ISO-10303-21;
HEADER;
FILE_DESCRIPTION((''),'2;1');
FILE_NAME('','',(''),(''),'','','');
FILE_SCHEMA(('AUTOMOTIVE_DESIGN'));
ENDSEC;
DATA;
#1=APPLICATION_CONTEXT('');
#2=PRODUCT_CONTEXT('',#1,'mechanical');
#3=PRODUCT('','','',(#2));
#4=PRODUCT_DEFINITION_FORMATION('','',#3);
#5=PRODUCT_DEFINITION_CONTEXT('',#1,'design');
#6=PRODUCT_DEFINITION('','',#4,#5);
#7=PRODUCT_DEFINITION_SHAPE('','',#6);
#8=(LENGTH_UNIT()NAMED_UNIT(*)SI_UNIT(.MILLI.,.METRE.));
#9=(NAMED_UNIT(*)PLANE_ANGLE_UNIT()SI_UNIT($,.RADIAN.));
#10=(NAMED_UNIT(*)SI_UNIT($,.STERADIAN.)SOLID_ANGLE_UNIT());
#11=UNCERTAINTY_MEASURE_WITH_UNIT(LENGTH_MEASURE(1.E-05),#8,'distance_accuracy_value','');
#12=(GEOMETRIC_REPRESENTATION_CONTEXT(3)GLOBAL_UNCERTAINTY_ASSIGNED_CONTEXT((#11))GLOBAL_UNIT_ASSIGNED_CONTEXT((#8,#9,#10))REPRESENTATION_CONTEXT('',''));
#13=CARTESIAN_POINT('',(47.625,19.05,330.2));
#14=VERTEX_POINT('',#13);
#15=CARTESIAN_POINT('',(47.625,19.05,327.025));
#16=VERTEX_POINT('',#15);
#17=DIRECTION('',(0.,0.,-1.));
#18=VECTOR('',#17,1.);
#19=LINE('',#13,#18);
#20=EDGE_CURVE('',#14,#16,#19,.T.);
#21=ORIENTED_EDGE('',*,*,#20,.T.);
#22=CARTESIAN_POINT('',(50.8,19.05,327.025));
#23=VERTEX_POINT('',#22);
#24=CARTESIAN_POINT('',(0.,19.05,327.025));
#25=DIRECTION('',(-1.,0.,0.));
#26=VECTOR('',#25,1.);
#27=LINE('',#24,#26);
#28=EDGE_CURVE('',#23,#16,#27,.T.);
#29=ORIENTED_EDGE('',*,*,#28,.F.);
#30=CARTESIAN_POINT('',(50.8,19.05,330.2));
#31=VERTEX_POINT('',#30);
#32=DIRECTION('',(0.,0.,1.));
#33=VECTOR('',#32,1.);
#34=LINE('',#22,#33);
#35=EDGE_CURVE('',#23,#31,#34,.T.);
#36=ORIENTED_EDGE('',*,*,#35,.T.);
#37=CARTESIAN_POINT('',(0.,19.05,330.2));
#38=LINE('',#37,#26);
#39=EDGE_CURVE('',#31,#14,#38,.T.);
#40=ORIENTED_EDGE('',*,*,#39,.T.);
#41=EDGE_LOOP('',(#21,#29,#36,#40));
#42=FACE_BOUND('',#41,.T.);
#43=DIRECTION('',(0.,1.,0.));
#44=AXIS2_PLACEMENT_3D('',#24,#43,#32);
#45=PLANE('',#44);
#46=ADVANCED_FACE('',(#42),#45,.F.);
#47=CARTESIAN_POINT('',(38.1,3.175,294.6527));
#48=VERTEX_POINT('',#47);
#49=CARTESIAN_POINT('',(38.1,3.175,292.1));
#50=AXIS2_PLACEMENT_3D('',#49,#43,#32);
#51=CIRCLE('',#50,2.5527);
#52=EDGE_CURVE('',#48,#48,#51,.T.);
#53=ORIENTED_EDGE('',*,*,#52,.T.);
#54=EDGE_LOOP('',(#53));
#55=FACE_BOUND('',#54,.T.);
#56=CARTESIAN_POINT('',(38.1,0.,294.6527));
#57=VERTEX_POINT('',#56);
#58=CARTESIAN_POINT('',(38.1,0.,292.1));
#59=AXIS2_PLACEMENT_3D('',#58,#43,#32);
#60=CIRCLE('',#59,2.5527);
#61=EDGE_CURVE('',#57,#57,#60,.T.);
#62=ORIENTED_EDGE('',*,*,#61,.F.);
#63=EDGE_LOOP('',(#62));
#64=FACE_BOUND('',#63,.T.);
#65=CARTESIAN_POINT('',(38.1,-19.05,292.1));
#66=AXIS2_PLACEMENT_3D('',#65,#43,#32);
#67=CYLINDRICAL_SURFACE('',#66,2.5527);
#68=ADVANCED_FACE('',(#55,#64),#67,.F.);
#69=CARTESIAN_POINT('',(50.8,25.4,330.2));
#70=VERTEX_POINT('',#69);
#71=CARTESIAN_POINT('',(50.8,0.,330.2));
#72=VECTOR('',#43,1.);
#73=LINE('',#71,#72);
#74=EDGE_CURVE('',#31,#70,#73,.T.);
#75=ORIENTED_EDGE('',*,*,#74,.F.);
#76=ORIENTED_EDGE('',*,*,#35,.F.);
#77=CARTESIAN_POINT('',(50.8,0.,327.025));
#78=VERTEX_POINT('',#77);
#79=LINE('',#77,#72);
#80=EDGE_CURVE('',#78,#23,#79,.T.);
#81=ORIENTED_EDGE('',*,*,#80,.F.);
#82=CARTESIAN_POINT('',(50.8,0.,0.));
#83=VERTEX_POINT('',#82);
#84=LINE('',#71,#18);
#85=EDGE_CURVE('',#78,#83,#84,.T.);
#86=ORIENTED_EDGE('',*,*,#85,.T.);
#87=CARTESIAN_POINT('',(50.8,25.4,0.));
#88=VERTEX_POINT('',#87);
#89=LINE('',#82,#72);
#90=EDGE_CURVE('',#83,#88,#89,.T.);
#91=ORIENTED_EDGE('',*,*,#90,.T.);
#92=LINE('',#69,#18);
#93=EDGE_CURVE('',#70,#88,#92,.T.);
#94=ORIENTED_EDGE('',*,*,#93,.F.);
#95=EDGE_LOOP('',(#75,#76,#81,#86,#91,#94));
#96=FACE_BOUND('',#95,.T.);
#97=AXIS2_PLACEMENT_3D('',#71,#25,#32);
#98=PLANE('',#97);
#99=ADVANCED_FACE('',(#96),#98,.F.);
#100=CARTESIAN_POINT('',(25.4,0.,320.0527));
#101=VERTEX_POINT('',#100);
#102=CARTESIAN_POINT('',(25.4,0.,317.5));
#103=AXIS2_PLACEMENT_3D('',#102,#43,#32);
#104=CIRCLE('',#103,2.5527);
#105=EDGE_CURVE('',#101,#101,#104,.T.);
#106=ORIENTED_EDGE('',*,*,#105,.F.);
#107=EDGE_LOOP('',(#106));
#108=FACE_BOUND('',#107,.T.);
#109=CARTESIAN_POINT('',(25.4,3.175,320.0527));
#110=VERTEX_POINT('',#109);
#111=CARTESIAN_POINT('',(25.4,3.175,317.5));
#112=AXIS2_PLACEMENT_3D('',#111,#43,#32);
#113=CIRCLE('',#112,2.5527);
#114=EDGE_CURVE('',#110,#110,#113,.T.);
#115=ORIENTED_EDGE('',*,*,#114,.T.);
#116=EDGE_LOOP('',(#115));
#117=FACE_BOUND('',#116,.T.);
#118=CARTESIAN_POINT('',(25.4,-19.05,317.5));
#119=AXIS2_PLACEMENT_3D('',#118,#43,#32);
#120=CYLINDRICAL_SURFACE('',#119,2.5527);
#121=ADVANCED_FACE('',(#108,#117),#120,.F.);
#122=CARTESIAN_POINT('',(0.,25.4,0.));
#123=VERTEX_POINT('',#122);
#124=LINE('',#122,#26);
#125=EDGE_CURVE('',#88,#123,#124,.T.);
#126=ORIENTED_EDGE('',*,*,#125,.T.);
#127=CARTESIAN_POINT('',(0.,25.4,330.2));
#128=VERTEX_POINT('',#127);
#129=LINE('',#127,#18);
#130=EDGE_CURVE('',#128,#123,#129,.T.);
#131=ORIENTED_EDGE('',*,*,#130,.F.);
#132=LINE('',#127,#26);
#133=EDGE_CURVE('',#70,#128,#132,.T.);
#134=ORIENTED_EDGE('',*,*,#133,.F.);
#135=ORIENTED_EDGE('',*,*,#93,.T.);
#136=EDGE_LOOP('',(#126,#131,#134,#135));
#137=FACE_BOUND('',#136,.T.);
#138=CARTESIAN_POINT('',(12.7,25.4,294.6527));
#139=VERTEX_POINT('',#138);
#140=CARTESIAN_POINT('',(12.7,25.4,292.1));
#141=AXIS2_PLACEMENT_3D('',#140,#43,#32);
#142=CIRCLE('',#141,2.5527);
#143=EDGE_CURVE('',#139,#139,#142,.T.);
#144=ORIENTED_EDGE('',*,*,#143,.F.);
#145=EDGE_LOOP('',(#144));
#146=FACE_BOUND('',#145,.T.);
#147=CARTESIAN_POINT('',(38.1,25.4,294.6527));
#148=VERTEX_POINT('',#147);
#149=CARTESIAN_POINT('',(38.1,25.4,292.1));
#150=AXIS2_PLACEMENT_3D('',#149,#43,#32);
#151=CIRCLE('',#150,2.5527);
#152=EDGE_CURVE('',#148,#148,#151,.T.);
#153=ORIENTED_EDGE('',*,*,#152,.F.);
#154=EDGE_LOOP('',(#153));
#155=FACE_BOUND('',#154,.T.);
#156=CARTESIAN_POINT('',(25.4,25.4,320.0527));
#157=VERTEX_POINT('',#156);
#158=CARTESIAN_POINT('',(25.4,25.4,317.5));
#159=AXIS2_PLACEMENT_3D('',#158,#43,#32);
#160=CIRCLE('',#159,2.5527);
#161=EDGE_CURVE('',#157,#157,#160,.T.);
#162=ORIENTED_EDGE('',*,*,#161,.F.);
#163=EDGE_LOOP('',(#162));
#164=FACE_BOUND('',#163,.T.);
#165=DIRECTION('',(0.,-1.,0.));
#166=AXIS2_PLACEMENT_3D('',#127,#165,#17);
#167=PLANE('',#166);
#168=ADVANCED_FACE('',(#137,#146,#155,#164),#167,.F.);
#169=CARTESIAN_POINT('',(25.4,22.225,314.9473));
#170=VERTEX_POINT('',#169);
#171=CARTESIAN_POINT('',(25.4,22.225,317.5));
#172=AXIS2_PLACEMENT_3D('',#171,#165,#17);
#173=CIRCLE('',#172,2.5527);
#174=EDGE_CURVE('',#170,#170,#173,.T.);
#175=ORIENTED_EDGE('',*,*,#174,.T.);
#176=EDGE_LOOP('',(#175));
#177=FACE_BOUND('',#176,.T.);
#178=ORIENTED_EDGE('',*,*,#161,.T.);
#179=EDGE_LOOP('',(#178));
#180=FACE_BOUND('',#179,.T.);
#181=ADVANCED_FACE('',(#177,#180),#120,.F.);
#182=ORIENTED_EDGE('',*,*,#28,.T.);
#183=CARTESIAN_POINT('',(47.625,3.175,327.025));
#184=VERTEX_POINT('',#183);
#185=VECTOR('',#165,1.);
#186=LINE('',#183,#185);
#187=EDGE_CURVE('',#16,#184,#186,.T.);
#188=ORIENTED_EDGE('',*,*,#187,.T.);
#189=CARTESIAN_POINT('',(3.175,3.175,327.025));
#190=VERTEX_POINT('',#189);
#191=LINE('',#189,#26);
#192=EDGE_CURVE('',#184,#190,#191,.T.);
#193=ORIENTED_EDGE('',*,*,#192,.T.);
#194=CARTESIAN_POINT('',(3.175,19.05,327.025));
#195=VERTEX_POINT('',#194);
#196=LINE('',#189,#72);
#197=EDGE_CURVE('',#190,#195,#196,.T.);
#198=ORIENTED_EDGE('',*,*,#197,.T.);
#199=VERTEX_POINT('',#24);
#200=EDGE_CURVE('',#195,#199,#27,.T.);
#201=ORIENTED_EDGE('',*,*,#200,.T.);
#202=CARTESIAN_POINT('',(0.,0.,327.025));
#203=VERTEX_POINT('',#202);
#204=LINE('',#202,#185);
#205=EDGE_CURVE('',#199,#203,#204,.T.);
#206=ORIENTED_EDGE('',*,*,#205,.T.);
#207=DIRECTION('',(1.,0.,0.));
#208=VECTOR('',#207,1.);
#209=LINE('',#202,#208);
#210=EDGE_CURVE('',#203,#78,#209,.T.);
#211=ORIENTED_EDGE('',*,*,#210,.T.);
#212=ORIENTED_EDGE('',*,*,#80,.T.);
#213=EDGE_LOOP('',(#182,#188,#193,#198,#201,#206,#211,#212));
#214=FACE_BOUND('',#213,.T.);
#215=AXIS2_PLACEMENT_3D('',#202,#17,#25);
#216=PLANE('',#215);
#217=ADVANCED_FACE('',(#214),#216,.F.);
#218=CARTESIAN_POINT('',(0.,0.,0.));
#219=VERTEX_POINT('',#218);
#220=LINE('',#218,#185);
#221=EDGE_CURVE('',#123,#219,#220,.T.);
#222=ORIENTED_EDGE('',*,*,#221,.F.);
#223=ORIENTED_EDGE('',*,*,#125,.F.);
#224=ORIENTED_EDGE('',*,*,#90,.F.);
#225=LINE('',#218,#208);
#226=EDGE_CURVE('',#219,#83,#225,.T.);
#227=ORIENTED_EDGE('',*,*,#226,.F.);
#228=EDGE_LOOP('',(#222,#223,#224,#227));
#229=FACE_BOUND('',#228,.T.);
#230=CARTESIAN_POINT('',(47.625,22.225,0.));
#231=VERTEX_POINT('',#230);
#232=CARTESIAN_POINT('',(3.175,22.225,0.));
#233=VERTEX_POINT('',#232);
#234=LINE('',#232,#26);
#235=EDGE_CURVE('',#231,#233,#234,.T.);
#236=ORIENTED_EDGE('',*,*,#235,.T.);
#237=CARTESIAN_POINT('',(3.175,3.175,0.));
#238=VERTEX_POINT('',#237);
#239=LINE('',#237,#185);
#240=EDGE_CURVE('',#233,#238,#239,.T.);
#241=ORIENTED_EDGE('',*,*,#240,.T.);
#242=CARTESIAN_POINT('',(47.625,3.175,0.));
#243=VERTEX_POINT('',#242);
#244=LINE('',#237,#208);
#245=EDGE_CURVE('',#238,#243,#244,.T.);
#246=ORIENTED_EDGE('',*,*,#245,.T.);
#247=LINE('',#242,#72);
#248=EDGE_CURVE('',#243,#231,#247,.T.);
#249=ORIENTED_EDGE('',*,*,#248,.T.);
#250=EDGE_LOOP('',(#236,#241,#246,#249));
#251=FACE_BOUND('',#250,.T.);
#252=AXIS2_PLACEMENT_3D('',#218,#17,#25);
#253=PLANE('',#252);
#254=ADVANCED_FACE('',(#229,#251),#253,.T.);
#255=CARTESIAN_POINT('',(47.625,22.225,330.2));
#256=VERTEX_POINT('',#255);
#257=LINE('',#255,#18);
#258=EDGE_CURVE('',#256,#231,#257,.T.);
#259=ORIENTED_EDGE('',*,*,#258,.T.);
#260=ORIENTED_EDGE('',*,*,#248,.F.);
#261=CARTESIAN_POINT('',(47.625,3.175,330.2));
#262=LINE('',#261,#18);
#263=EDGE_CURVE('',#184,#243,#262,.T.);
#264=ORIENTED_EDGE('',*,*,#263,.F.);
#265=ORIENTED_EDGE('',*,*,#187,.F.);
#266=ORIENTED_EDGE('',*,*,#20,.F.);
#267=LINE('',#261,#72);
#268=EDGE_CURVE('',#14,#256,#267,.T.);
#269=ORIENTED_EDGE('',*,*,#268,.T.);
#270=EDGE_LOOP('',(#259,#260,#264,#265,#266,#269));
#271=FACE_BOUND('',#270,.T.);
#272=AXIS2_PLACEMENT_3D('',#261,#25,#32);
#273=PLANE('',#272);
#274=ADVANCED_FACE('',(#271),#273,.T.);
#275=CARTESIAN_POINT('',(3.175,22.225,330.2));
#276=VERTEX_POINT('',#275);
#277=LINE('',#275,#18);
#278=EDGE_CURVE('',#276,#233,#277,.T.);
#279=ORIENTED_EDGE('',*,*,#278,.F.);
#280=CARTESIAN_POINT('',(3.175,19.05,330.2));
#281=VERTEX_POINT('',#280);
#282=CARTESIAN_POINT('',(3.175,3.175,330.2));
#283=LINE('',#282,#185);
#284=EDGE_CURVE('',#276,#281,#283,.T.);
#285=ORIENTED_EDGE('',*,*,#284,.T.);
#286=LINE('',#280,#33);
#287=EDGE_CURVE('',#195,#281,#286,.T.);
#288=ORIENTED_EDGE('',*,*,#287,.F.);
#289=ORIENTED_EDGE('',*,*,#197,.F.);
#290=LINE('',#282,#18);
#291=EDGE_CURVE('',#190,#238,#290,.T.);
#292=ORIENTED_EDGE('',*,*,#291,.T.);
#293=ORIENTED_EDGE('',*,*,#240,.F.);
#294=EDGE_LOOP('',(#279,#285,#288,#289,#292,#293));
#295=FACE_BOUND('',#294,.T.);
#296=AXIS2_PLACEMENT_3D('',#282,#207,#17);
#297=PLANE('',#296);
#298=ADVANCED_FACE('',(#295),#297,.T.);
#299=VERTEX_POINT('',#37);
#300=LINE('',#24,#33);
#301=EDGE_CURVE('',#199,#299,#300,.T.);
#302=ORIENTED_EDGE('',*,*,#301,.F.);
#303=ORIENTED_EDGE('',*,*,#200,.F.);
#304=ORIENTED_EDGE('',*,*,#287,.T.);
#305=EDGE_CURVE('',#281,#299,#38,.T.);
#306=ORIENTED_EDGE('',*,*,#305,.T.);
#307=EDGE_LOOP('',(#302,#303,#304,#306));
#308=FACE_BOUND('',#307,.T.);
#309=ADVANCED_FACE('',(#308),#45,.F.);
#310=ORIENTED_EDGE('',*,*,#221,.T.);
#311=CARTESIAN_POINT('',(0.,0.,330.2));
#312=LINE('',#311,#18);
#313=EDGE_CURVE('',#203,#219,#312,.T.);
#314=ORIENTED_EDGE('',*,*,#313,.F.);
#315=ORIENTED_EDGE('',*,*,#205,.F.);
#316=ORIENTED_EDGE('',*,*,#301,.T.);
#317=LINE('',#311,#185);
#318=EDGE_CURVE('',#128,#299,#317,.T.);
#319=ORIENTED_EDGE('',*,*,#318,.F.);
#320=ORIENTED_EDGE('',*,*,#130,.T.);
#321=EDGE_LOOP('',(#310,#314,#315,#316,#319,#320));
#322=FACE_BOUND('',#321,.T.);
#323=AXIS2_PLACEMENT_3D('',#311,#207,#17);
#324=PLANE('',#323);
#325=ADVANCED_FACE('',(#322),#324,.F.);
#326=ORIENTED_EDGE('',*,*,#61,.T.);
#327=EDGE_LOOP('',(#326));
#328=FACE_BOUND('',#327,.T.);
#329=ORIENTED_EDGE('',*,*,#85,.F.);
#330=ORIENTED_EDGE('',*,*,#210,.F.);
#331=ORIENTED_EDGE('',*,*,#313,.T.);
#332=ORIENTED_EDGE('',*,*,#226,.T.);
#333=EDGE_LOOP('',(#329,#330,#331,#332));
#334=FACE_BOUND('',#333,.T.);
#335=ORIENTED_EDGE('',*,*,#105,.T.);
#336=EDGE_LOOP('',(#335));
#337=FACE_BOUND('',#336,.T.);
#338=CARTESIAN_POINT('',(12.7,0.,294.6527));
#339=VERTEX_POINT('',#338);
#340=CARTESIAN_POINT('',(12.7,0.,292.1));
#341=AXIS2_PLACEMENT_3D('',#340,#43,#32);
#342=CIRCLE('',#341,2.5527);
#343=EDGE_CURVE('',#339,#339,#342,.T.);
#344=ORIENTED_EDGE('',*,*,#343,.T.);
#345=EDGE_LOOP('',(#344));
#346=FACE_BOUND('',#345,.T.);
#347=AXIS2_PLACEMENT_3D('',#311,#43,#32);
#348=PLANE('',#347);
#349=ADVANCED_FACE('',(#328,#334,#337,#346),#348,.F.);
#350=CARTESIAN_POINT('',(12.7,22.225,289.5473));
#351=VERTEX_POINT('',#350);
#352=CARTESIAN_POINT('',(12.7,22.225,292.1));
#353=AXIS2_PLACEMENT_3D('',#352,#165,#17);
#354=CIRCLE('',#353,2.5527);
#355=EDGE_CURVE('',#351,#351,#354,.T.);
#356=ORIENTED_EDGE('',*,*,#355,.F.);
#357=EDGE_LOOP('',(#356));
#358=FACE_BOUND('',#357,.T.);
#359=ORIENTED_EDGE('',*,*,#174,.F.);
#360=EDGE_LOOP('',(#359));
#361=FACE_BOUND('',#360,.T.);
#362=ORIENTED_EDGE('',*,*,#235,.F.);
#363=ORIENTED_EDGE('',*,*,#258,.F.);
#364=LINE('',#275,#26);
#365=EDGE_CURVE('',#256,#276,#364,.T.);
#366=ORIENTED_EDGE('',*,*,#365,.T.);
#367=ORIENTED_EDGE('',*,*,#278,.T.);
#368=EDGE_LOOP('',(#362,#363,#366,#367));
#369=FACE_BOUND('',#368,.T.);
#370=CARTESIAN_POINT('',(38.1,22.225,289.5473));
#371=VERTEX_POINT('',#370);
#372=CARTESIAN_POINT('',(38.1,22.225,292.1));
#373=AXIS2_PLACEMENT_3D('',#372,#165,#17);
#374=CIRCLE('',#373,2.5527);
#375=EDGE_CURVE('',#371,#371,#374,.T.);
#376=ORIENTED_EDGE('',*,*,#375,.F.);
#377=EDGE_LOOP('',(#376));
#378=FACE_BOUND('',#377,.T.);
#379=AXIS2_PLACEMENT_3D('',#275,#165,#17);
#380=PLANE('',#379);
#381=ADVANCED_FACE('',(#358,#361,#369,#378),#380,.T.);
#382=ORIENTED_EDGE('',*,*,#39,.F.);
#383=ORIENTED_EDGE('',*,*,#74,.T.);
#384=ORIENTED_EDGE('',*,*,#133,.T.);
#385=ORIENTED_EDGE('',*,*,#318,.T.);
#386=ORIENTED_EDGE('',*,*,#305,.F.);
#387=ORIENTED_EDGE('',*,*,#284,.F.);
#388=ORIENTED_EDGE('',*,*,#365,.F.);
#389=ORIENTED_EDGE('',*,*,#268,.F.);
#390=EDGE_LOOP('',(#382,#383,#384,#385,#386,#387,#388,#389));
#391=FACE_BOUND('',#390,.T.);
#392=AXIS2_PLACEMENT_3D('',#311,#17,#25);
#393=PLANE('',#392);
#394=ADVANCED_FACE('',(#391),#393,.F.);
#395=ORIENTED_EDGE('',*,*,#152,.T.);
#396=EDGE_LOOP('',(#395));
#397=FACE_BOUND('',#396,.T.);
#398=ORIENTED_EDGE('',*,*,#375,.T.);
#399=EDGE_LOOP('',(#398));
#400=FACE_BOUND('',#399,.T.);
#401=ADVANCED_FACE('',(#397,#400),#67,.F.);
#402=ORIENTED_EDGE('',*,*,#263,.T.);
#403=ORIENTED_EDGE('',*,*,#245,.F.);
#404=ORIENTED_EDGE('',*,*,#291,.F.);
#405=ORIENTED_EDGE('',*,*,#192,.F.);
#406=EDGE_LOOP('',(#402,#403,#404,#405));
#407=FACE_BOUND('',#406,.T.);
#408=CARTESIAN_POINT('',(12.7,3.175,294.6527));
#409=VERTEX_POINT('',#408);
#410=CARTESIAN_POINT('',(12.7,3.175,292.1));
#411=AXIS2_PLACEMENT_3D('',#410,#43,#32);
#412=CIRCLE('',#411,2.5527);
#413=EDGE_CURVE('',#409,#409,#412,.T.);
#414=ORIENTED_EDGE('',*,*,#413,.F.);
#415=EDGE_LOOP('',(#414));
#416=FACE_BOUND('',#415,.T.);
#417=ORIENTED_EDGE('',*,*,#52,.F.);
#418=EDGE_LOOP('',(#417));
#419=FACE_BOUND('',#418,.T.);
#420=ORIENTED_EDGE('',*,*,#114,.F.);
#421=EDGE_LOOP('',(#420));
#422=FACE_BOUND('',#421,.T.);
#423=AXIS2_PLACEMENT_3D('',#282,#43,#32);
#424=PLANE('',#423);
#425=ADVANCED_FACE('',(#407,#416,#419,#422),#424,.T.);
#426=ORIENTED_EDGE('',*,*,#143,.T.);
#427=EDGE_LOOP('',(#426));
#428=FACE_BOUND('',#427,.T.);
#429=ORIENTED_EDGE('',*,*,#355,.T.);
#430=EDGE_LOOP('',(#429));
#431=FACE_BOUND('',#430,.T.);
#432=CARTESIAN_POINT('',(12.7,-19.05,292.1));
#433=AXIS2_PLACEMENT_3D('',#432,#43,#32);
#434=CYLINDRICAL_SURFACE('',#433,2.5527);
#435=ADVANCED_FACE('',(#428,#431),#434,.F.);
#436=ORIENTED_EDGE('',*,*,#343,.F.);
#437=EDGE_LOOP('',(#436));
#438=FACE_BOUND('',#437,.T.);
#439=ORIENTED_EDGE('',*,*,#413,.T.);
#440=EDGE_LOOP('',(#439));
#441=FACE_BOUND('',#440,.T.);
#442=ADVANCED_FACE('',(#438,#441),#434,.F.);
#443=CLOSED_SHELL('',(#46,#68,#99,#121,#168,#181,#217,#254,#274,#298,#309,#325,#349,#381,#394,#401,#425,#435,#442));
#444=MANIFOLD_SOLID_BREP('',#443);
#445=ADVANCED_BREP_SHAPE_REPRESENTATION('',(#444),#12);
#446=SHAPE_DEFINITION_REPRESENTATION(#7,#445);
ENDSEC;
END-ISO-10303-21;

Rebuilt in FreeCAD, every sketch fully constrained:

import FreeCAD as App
import Part
import Sketcher

V = App.Vector
Q = App.Units.Quantity

doc = App.newDocument("Part")
body = doc.addObject("PartDesign::Body", "Body")

sketch1 = body.newObject("Sketcher::SketchObject", "Sketch")
sketch1.AttachmentSupport = (doc.getObject("XY_Plane"), [""])
sketch1.MapMode = "FlatFace"
sketch1.addGeometry([
    Part.LineSegment(V(0, 25.4, 0), V(0, 0, 0)),
    Part.LineSegment(V(0, 0, 0), V(50.8, 0, 0)),
    Part.LineSegment(V(50.8, 0, 0), V(50.8, 25.4, 0)),
    Part.LineSegment(V(50.8, 25.4, 0), V(0, 25.4, 0)),
    Part.LineSegment(V(47.625, 3.175, 0), V(3.175, 3.175, 0)),
    Part.LineSegment(V(3.175, 3.175, 0), V(3.175, 22.225, 0)),
    Part.LineSegment(V(3.175, 22.225, 0), V(47.625, 22.225, 0)),
    Part.LineSegment(V(47.625, 22.225, 0), V(47.625, 3.175, 0)),
], False)
sketch1.addConstraint([
    Sketcher.Constraint("Coincident", 0, 2, 1, 1),
    Sketcher.Constraint("Coincident", 1, 2, 2, 1),
    Sketcher.Constraint("Coincident", 2, 2, 3, 1),
    Sketcher.Constraint("Coincident", 3, 2, 0, 1),
    Sketcher.Constraint("Coincident", 4, 2, 5, 1),
    Sketcher.Constraint("Coincident", 5, 2, 6, 1),
    Sketcher.Constraint("Coincident", 6, 2, 7, 1),
    Sketcher.Constraint("Coincident", 7, 2, 4, 1),
    Sketcher.Constraint("Vertical", 0),
    Sketcher.Constraint("Horizontal", 1),
    Sketcher.Constraint("Vertical", 2),
    Sketcher.Constraint("Horizontal", 3),
    Sketcher.Constraint("Horizontal", 4),
    Sketcher.Constraint("Vertical", 5),
    Sketcher.Constraint("Horizontal", 6),
    Sketcher.Constraint("Vertical", 7),
    Sketcher.Constraint("Coincident", 0, 2, -1, 1),
    Sketcher.Constraint("DistanceX", 1, 1, 1, 2, Q("2 in")),
    Sketcher.Constraint("DistanceY", 0, 2, 0, 1, Q("1 in")),
    Sketcher.Constraint("DistanceX", 4, 2, 4, 1, Q("1.75 in")),
    Sketcher.Constraint("DistanceY", 5, 1, 5, 2, Q("0.75 in")),
    Sketcher.Constraint("DistanceX", -1, 1, 4, 2, Q("0.125 in")),
    Sketcher.Constraint("DistanceY", -1, 1, 4, 2, Q("0.125 in")),
])
pad1 = body.newObject("PartDesign::Pad", "Pad")
pad1.Profile = sketch1
pad1.Length = Q("13 in")

sketch2 = body.newObject("Sketcher::SketchObject", "Sketch001")
sketch2.AttachmentSupport = (doc.getObject("XY_Plane"), [""])
sketch2.MapMode = "FlatFace"
sketch2.AttachmentOffset = App.Placement(V(0, 0, 13 * 25.4), App.Rotation())
sketch2.addGeometry([
    Part.LineSegment(V(0, 19.05, 0), V(0, 0, 0)),
    Part.LineSegment(V(0, 0, 0), V(50.8, 0, 0)),
    Part.LineSegment(V(50.8, 0, 0), V(50.8, 19.05, 0)),
    Part.LineSegment(V(50.8, 19.05, 0), V(0, 19.05, 0)),
], False)
sketch2.addConstraint([
    Sketcher.Constraint("Coincident", 0, 2, 1, 1),
    Sketcher.Constraint("Coincident", 1, 2, 2, 1),
    Sketcher.Constraint("Coincident", 2, 2, 3, 1),
    Sketcher.Constraint("Coincident", 3, 2, 0, 1),
    Sketcher.Constraint("Vertical", 0),
    Sketcher.Constraint("Horizontal", 1),
    Sketcher.Constraint("Vertical", 2),
    Sketcher.Constraint("Horizontal", 3),
    Sketcher.Constraint("Coincident", 0, 2, -1, 1),
    Sketcher.Constraint("DistanceX", 1, 1, 1, 2, Q("2 in")),
    Sketcher.Constraint("DistanceY", 0, 2, 0, 1, Q("0.75 in")),
])
pocket1 = body.newObject("PartDesign::Pocket", "Pocket")
pocket1.Profile = sketch2
pocket1.Length = Q("0.125 in")

sketch3 = body.newObject("Sketcher::SketchObject", "Sketch002")
sketch3.AttachmentSupport = (doc.getObject("XZ_Plane"), [""])
sketch3.MapMode = "FlatFace"
sketch3.AttachmentOffset = App.Placement(V(0, 0, -1 * 25.4), App.Rotation())
sketch3.addGeometry([
    Part.Circle(V(12.7, 292.1, 0), V(0, 0, 1), 2.5527),
    Part.Circle(V(38.1, 292.1, 0), V(0, 0, 1), 2.5527),
    Part.Circle(V(25.4, 317.5, 0), V(0, 0, 1), 2.5527),
], False)
sketch3.addConstraint([
    Sketcher.Constraint("Equal", 0, 1),
    Sketcher.Constraint("Equal", 1, 2),
    Sketcher.Constraint("Horizontal", 0, 3, 1, 3),
    Sketcher.Constraint("Diameter", 0, Q("0.201 in")),
    Sketcher.Constraint("DistanceX", -1, 1, 2, 3, Q("1 in")),
    Sketcher.Constraint("DistanceX", 0, 3, 1, 3, Q("1 in")),
    Sketcher.Constraint("DistanceY", 0, 3, 2, 3, Q("1 in")),
    Sketcher.Constraint("DistanceX", -1, 1, 0, 3, Q("0.5 in")),
    Sketcher.Constraint("DistanceY", -1, 1, 0, 3, Q("11.5 in")),
])
pocket2 = body.newObject("PartDesign::Pocket", "Pocket001")
pocket2.Profile = sketch3
pocket2.Length = Q("1.75 in")
pocket2.Reversed = True

doc.recompute()
